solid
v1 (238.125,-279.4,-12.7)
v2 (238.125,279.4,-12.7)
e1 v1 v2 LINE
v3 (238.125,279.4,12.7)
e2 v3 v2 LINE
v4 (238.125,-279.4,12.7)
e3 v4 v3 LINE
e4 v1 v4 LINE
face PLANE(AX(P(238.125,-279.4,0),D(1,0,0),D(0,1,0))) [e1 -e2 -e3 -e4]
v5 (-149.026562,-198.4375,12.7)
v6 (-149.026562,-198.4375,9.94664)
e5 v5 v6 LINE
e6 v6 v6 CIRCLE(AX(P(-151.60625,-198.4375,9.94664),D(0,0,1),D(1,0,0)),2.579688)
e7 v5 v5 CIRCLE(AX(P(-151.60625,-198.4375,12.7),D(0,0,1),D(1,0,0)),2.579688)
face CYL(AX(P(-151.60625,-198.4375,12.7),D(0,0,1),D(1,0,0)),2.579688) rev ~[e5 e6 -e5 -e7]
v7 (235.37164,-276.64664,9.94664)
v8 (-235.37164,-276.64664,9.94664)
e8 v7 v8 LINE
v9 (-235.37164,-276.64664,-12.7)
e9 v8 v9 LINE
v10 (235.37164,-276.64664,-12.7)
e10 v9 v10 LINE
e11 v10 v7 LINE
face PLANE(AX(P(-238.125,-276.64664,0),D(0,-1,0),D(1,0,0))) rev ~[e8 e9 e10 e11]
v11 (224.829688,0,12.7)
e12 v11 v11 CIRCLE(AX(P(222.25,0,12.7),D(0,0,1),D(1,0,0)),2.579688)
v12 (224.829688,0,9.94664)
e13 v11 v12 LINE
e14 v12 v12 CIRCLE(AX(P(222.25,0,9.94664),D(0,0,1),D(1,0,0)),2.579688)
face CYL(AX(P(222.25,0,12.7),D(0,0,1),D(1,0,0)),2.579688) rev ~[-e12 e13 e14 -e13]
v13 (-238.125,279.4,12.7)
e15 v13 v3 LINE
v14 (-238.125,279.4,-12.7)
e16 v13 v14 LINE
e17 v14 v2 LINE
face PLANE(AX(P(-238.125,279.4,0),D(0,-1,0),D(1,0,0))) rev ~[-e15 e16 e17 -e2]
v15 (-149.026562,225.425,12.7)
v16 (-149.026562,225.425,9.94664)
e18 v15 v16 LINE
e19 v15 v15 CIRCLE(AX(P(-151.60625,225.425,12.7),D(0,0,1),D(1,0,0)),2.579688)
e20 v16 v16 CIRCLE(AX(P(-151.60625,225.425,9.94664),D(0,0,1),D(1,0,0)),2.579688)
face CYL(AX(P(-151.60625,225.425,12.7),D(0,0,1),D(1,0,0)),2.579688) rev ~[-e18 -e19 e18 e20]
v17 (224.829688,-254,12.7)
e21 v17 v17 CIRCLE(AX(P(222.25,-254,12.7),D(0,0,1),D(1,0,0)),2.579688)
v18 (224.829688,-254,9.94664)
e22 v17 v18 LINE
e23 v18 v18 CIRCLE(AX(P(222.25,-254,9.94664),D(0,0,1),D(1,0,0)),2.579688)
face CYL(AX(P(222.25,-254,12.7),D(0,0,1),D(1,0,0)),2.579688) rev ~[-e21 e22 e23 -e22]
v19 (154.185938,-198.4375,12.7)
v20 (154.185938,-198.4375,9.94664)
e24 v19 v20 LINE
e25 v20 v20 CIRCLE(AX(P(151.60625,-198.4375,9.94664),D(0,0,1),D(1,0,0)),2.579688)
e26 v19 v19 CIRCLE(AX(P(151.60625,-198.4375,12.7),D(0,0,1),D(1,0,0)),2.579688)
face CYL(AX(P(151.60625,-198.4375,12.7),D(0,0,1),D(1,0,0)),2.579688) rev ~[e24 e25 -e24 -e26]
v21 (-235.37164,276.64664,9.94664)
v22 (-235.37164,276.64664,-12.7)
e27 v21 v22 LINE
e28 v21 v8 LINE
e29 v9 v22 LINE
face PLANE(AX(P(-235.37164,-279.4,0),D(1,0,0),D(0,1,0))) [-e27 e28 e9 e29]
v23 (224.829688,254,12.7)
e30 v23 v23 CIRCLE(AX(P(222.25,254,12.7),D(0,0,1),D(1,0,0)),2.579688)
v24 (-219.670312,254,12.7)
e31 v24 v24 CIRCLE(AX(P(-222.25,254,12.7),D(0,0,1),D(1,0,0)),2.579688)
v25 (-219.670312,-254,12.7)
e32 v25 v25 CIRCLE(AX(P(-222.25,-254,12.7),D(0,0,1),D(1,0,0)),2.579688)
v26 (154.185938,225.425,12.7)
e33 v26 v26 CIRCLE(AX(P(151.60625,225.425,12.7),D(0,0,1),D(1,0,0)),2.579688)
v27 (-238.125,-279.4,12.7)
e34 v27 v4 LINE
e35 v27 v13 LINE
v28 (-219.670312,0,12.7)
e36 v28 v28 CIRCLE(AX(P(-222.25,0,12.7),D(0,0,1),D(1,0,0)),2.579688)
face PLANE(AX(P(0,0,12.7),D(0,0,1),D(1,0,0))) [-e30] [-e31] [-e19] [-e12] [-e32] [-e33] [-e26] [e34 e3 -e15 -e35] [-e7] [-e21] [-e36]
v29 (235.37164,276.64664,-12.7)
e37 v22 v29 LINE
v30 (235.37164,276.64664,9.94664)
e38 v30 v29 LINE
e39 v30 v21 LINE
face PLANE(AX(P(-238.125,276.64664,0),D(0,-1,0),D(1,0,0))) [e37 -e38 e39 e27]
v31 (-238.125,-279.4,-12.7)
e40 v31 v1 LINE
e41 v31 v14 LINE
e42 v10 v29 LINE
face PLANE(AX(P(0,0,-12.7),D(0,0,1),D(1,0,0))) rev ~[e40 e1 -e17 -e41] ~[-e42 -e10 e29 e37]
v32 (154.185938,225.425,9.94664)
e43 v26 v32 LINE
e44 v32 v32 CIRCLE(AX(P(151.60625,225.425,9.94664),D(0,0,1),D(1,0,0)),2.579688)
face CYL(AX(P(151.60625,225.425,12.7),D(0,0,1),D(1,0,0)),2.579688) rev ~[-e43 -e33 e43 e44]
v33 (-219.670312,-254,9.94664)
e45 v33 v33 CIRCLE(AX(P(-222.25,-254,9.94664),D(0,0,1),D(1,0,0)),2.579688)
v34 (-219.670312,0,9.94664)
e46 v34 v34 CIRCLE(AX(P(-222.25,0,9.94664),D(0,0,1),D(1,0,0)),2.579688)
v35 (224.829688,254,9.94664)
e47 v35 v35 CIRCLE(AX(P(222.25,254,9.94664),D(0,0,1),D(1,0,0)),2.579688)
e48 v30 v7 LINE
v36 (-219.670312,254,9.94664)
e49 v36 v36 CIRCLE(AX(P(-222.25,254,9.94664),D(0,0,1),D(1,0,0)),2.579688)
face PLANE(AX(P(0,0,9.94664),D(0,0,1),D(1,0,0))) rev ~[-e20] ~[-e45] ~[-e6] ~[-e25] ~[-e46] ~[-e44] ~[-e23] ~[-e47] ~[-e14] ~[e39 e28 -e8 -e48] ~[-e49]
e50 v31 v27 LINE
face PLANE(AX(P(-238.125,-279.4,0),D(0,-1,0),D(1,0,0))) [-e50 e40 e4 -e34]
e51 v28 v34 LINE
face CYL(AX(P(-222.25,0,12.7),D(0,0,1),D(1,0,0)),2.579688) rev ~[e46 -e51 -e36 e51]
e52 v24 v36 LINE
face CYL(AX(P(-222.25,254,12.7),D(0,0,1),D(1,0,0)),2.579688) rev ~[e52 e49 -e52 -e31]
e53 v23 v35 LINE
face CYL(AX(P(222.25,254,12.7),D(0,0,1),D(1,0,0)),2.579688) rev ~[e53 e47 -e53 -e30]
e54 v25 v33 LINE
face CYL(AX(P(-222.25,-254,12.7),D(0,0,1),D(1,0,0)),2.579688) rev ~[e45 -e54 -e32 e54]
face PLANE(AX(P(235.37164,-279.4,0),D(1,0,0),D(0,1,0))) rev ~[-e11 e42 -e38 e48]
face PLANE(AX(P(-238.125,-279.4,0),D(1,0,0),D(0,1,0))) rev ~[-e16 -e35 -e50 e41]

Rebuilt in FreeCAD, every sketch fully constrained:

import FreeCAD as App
import Part
import Sketcher
Q = App.Units.Quantity


def faces_at(feature, points):
    """Names of the faces that lie closest to the given points."""
    faces = feature.Shape.Faces
    near = lambda p: min(range(len(faces)), key=lambda i: faces[i].distToShape(Part.Vertex(*p))[0])
    return sorted({f"Face{near(p) + 1}" for p in points})

doc = App.newDocument("Part")
body = doc.addObject("PartDesign::Body", "Body")

# Sketch on XY plane
sketch1 = doc.addObject("Sketcher::SketchObject", "Sketch")
body.addObject(sketch1)
sketch1.AttachmentSupport = (doc.XY_Plane, [""])
sketch1.MapMode = "FlatFace"
sketch1.addGeometry([
    Part.LineSegment(App.Vector(-238, 279, 0), App.Vector(-238, -279, 0)),
    Part.LineSegment(App.Vector(-238, -279, 0), App.Vector(238, -279, 0)),
    Part.LineSegment(App.Vector(238, -279, 0), App.Vector(238, 279, 0)),
    Part.LineSegment(App.Vector(238, 279, 0), App.Vector(-238, 279, 0)),
], False)
sketch1.addConstraint([
    Sketcher.Constraint("Coincident", 0, 2, 1, 1),
    Sketcher.Constraint("Coincident", 1, 2, 2, 1),
    Sketcher.Constraint("Coincident", 2, 2, 3, 1),
    Sketcher.Constraint("Coincident", 3, 2, 0, 1),
    Sketcher.Constraint("Vertical", 0),
    Sketcher.Constraint("Horizontal", 1),
    Sketcher.Constraint("Vertical", 2),
    Sketcher.Constraint("Horizontal", 3),
    Sketcher.Constraint("Symmetric", 0, 2, 2, 2, -1, 1),
    Sketcher.Constraint("DistanceY", 0, 2, 0, 1, Q("22 in")),
    Sketcher.Constraint("DistanceX", 1, 1, 1, 2, Q("18.75 in")),
])
pad1 = doc.addObject("PartDesign::Pad", "Pad")
body.addObject(pad1)
pad1.Profile = sketch1
pad1.Length = Q("1 in")
pad1.Midplane = True
doc.recompute()

thickness = doc.addObject("PartDesign::Thickness", "Thickness")
body.addObject(thickness)
thickness.Base = (pad1, faces_at(pad1, [(0, 0, -12.7)]))
thickness.Value = Q("0.1084 in")
thickness.Reversed = True
thickness.Join = "Arc"

# Sketch on XY plane
sketch2 = doc.addObject("Sketcher::SketchObject", "Sketch001")
body.addObject(sketch2)
sketch2.AttachmentSupport = (doc.XY_Plane, [""])
sketch2.MapMode = "FlatFace"
sketch2.AttachmentOffset = App.Placement(App.Vector(0, 0, 0.5 * 25.4), App.Rotation())
sketch2.addGeometry([
    Part.Circle(App.Vector(-151.6, 225.4, 0), App.Vector(0, 0, 1), 2.6),  # 0
    Part.Circle(App.Vector(151.6, 225.4, 0), App.Vector(0, 0, 1), 2.6),  # 1
    Part.Circle(App.Vector(151.6, -198.4, 0), App.Vector(0, 0, 1), 2.6),  # 2
    Part.Circle(App.Vector(-151.6, -198.4, 0), App.Vector(0, 0, 1), 2.6),  # 3
    Part.Circle(App.Vector(-222.2, -254, 0), App.Vector(0, 0, 1), 2.6),  # 4
    Part.Circle(App.Vector(-222.2, 254, 0), App.Vector(0, 0, 1), 2.6),  # 5
    Part.Circle(App.Vector(222.2, -254, 0), App.Vector(0, 0, 1), 2.6),  # 6
    Part.Circle(App.Vector(222.2, 254, 0), App.Vector(0, 0, 1), 2.6),  # 7
    Part.Circle(App.Vector(-222.2, 0, 0), App.Vector(0, 0, 1), 2.6),  # 8
    Part.Circle(App.Vector(222.2, 0, 0), App.Vector(0, 0, 1), 2.6),  # 9
], False)
sketch2.addConstraint([
    Sketcher.Constraint("Equal", 0, 1),
    Sketcher.Constraint("Equal", 1, 2),
    Sketcher.Constraint("Equal", 2, 3),
    Sketcher.Constraint("Equal", 3, 4),
    Sketcher.Constraint("Equal", 4, 5),
    Sketcher.Constraint("Equal", 5, 6),
    Sketcher.Constraint("Equal", 6, 7),
    Sketcher.Constraint("Equal", 7, 8),
    Sketcher.Constraint("Equal", 8, 9),
    Sketcher.Constraint("Symmetric", 5, 3, 6, 3, -1, 1),
    Sketcher.Constraint("Symmetric", 4, 3, 7, 3, -1, 1),
    Sketcher.Constraint("Symmetric", 8, 3, 9, 3, -1, 1),
    Sketcher.Constraint("Symmetric", 0, 3, 1, 3, -2),
    Sketcher.Constraint("Symmetric", 2, 3, 3, 3, -2),
    Sketcher.Constraint("Symmetric", 4, 3, 6, 3, -2),
    Sketcher.Constraint("PointOnObject", 8, 3, -1),
    Sketcher.Constraint("Vertical", 1, 3, 2, 3),
    Sketcher.Constraint("Vertical", 5, 3, 8, 3),
    Sketcher.Constraint("Diameter", 0, Q("0.203125 in")),
    Sketcher.Constraint("DistanceY", 4, 3, -1, 1, Q("10 in")),
    Sketcher.Constraint("DistanceX", 4, 3, 6, 3, Q("17.5 in")),
    Sketcher.Constraint("DistanceX", 0, 3, -1, 1, Q("5.96875 in")),
    Sketcher.Constraint("DistanceY", -1, 1, 0, 3, Q("8.875 in")),
    Sketcher.Constraint("DistanceY", 2, 3, -1, 1, Q("7.8125 in")),
])
pocket1 = doc.addObject("PartDesign::Pocket", "Pocket")
body.addObject(pocket1)
pocket1.Profile = sketch2
pocket1.Type = "ThroughAll"

doc.recompute()
